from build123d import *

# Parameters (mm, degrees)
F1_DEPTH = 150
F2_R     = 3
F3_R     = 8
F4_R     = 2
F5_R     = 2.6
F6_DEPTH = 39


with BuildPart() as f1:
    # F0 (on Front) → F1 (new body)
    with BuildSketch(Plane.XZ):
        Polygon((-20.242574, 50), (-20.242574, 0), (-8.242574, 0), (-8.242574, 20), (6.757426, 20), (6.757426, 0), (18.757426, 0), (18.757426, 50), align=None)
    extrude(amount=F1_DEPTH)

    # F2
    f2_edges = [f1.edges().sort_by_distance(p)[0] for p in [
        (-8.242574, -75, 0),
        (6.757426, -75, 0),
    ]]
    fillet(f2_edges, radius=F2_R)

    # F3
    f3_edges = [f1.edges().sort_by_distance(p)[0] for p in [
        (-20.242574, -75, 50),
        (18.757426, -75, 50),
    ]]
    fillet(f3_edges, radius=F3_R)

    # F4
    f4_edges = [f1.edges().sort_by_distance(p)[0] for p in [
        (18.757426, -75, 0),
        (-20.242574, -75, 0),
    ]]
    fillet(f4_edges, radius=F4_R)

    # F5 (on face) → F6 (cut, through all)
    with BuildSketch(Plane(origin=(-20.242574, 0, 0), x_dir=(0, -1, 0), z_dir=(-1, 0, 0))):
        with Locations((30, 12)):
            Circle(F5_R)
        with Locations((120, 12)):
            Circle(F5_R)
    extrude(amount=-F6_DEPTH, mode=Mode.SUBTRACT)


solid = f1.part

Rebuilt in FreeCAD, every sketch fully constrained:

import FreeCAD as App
import Part
import Sketcher

V = App.Vector


def edges_at(feature, points):
    """Names of the edges that pass closest to the given points."""
    edges = feature.Shape.Edges
    near = lambda p: min(range(len(edges)), key=lambda i: edges[i].distToShape(Part.Vertex(*p))[0])
    return sorted({f"Edge{near(p) + 1}" for p in points})

doc = App.newDocument("Part")
body = doc.addObject("PartDesign::Body", "Body")

sketch1 = body.newObject("Sketcher::SketchObject", "Sketch")
sketch1.AttachmentSupport = (doc.getObject("XZ_Plane"), [""])
sketch1.MapMode = "FlatFace"
sketch1.addGeometry([
    Part.LineSegment(V(-20, 50, 0), V(-20, 0, 0)),
    Part.LineSegment(V(-20, 0, 0), V(-8, 0, 0)),
    Part.LineSegment(V(-8, 0, 0), V(-8, 20, 0)),
    Part.LineSegment(V(-8, 20, 0), V(7, 20, 0)),
    Part.LineSegment(V(7, 20, 0), V(7, 0, 0)),
    Part.LineSegment(V(7, 0, 0), V(19, 0, 0)),
    Part.LineSegment(V(19, 0, 0), V(19, 50, 0)),
    Part.LineSegment(V(19, 50, 0), V(-20, 50, 0)),
], False)
sketch1.addConstraint([
    Sketcher.Constraint("Coincident", 0, 2, 1, 1),
    Sketcher.Constraint("Coincident", 1, 2, 2, 1),
    Sketcher.Constraint("Coincident", 2, 2, 3, 1),
    Sketcher.Constraint("Coincident", 3, 2, 4, 1),
    Sketcher.Constraint("Coincident", 4, 2, 5, 1),
    Sketcher.Constraint("Coincident", 5, 2, 6, 1),
    Sketcher.Constraint("Coincident", 6, 2, 7, 1),
    Sketcher.Constraint("Coincident", 7, 2, 0, 1),
    Sketcher.Constraint("Vertical", 0),
    Sketcher.Constraint("Horizontal", 1),
    Sketcher.Constraint("Vertical", 2),
    Sketcher.Constraint("Horizontal", 3),
    Sketcher.Constraint("Vertical", 4),
    Sketcher.Constraint("Horizontal", 5),
    Sketcher.Constraint("Vertical", 6),
    Sketcher.Constraint("Horizontal", 7),
    Sketcher.Constraint("PointOnObject", 0, 2, -1),
    Sketcher.Constraint("PointOnObject", 4, 2, -1),
    Sketcher.Constraint("Equal", 1, 5),
    Sketcher.Constraint("DistanceX", 1, 1, 1, 2, 12.0),
    Sketcher.Constraint("DistanceX", 3, 1, 3, 2, 15.0),
    Sketcher.Constraint("DistanceY", 0, 2, 0, 1, 50.0),
    Sketcher.Constraint("DistanceY", 2, 1, 2, 2, 20.0),
    Sketcher.Constraint("DistanceX", 0, 2, -1, 1, 20.242574),
])
pad1 = body.newObject("PartDesign::Pad", "Pad")
pad1.Profile = sketch1
pad1.Length = 150
doc.recompute()

fillet = body.newObject("PartDesign::Fillet", "Fillet")
fillet.Base = (pad1, edges_at(pad1, [(-8.243, -75, 0), (6.757, -75, 0)]))
fillet.Radius = 3
doc.recompute()

fillet2 = body.newObject("PartDesign::Fillet", "Fillet001")
fillet2.Base = (fillet, edges_at(fillet, [(-20.243, -75, 50), (18.757, -75, 50)]))
fillet2.Radius = 8
doc.recompute()

fillet3 = body.newObject("PartDesign::Fillet", "Fillet002")
fillet3.Base = (fillet2, edges_at(fillet2, [(18.757, -75, 0), (-20.243, -75, 0)]))
fillet3.Radius = 2

sketch2 = body.newObject("Sketcher::SketchObject", "Sketch001")
sketch2.AttachmentSupport = (doc.getObject("YZ_Plane"), [""])
sketch2.MapMode = "FlatFace"
sketch2.AttachmentOffset = App.Placement(V(0, 0, -20.242574), App.Rotation())
sketch2.addGeometry([
    Part.Circle(V(-30, 12, 0), V(0, 0, 1), 2.6),
    Part.Circle(V(-120, 12, 0), V(0, 0, 1), 2.6),
], False)
sketch2.addConstraint([
    Sketcher.Constraint("Equal", 0, 1),
    Sketcher.Constraint("Horizontal", 0, 3, 1, 3),
    Sketcher.Constraint("Diameter", 0, 5.2),
    Sketcher.Constraint("DistanceX", 0, 3, -1, 1, 30.0),
    Sketcher.Constraint("DistanceY", -1, 1, 0, 3, 12.0),
    Sketcher.Constraint("DistanceX", 1, 3, -1, 1, 120.0),
])
pocket1 = body.newObject("PartDesign::Pocket", "Pocket")
pocket1.Profile = sketch2
pocket1.Type = "ThroughAll"
pocket1.Reversed = True

doc.recompute()
